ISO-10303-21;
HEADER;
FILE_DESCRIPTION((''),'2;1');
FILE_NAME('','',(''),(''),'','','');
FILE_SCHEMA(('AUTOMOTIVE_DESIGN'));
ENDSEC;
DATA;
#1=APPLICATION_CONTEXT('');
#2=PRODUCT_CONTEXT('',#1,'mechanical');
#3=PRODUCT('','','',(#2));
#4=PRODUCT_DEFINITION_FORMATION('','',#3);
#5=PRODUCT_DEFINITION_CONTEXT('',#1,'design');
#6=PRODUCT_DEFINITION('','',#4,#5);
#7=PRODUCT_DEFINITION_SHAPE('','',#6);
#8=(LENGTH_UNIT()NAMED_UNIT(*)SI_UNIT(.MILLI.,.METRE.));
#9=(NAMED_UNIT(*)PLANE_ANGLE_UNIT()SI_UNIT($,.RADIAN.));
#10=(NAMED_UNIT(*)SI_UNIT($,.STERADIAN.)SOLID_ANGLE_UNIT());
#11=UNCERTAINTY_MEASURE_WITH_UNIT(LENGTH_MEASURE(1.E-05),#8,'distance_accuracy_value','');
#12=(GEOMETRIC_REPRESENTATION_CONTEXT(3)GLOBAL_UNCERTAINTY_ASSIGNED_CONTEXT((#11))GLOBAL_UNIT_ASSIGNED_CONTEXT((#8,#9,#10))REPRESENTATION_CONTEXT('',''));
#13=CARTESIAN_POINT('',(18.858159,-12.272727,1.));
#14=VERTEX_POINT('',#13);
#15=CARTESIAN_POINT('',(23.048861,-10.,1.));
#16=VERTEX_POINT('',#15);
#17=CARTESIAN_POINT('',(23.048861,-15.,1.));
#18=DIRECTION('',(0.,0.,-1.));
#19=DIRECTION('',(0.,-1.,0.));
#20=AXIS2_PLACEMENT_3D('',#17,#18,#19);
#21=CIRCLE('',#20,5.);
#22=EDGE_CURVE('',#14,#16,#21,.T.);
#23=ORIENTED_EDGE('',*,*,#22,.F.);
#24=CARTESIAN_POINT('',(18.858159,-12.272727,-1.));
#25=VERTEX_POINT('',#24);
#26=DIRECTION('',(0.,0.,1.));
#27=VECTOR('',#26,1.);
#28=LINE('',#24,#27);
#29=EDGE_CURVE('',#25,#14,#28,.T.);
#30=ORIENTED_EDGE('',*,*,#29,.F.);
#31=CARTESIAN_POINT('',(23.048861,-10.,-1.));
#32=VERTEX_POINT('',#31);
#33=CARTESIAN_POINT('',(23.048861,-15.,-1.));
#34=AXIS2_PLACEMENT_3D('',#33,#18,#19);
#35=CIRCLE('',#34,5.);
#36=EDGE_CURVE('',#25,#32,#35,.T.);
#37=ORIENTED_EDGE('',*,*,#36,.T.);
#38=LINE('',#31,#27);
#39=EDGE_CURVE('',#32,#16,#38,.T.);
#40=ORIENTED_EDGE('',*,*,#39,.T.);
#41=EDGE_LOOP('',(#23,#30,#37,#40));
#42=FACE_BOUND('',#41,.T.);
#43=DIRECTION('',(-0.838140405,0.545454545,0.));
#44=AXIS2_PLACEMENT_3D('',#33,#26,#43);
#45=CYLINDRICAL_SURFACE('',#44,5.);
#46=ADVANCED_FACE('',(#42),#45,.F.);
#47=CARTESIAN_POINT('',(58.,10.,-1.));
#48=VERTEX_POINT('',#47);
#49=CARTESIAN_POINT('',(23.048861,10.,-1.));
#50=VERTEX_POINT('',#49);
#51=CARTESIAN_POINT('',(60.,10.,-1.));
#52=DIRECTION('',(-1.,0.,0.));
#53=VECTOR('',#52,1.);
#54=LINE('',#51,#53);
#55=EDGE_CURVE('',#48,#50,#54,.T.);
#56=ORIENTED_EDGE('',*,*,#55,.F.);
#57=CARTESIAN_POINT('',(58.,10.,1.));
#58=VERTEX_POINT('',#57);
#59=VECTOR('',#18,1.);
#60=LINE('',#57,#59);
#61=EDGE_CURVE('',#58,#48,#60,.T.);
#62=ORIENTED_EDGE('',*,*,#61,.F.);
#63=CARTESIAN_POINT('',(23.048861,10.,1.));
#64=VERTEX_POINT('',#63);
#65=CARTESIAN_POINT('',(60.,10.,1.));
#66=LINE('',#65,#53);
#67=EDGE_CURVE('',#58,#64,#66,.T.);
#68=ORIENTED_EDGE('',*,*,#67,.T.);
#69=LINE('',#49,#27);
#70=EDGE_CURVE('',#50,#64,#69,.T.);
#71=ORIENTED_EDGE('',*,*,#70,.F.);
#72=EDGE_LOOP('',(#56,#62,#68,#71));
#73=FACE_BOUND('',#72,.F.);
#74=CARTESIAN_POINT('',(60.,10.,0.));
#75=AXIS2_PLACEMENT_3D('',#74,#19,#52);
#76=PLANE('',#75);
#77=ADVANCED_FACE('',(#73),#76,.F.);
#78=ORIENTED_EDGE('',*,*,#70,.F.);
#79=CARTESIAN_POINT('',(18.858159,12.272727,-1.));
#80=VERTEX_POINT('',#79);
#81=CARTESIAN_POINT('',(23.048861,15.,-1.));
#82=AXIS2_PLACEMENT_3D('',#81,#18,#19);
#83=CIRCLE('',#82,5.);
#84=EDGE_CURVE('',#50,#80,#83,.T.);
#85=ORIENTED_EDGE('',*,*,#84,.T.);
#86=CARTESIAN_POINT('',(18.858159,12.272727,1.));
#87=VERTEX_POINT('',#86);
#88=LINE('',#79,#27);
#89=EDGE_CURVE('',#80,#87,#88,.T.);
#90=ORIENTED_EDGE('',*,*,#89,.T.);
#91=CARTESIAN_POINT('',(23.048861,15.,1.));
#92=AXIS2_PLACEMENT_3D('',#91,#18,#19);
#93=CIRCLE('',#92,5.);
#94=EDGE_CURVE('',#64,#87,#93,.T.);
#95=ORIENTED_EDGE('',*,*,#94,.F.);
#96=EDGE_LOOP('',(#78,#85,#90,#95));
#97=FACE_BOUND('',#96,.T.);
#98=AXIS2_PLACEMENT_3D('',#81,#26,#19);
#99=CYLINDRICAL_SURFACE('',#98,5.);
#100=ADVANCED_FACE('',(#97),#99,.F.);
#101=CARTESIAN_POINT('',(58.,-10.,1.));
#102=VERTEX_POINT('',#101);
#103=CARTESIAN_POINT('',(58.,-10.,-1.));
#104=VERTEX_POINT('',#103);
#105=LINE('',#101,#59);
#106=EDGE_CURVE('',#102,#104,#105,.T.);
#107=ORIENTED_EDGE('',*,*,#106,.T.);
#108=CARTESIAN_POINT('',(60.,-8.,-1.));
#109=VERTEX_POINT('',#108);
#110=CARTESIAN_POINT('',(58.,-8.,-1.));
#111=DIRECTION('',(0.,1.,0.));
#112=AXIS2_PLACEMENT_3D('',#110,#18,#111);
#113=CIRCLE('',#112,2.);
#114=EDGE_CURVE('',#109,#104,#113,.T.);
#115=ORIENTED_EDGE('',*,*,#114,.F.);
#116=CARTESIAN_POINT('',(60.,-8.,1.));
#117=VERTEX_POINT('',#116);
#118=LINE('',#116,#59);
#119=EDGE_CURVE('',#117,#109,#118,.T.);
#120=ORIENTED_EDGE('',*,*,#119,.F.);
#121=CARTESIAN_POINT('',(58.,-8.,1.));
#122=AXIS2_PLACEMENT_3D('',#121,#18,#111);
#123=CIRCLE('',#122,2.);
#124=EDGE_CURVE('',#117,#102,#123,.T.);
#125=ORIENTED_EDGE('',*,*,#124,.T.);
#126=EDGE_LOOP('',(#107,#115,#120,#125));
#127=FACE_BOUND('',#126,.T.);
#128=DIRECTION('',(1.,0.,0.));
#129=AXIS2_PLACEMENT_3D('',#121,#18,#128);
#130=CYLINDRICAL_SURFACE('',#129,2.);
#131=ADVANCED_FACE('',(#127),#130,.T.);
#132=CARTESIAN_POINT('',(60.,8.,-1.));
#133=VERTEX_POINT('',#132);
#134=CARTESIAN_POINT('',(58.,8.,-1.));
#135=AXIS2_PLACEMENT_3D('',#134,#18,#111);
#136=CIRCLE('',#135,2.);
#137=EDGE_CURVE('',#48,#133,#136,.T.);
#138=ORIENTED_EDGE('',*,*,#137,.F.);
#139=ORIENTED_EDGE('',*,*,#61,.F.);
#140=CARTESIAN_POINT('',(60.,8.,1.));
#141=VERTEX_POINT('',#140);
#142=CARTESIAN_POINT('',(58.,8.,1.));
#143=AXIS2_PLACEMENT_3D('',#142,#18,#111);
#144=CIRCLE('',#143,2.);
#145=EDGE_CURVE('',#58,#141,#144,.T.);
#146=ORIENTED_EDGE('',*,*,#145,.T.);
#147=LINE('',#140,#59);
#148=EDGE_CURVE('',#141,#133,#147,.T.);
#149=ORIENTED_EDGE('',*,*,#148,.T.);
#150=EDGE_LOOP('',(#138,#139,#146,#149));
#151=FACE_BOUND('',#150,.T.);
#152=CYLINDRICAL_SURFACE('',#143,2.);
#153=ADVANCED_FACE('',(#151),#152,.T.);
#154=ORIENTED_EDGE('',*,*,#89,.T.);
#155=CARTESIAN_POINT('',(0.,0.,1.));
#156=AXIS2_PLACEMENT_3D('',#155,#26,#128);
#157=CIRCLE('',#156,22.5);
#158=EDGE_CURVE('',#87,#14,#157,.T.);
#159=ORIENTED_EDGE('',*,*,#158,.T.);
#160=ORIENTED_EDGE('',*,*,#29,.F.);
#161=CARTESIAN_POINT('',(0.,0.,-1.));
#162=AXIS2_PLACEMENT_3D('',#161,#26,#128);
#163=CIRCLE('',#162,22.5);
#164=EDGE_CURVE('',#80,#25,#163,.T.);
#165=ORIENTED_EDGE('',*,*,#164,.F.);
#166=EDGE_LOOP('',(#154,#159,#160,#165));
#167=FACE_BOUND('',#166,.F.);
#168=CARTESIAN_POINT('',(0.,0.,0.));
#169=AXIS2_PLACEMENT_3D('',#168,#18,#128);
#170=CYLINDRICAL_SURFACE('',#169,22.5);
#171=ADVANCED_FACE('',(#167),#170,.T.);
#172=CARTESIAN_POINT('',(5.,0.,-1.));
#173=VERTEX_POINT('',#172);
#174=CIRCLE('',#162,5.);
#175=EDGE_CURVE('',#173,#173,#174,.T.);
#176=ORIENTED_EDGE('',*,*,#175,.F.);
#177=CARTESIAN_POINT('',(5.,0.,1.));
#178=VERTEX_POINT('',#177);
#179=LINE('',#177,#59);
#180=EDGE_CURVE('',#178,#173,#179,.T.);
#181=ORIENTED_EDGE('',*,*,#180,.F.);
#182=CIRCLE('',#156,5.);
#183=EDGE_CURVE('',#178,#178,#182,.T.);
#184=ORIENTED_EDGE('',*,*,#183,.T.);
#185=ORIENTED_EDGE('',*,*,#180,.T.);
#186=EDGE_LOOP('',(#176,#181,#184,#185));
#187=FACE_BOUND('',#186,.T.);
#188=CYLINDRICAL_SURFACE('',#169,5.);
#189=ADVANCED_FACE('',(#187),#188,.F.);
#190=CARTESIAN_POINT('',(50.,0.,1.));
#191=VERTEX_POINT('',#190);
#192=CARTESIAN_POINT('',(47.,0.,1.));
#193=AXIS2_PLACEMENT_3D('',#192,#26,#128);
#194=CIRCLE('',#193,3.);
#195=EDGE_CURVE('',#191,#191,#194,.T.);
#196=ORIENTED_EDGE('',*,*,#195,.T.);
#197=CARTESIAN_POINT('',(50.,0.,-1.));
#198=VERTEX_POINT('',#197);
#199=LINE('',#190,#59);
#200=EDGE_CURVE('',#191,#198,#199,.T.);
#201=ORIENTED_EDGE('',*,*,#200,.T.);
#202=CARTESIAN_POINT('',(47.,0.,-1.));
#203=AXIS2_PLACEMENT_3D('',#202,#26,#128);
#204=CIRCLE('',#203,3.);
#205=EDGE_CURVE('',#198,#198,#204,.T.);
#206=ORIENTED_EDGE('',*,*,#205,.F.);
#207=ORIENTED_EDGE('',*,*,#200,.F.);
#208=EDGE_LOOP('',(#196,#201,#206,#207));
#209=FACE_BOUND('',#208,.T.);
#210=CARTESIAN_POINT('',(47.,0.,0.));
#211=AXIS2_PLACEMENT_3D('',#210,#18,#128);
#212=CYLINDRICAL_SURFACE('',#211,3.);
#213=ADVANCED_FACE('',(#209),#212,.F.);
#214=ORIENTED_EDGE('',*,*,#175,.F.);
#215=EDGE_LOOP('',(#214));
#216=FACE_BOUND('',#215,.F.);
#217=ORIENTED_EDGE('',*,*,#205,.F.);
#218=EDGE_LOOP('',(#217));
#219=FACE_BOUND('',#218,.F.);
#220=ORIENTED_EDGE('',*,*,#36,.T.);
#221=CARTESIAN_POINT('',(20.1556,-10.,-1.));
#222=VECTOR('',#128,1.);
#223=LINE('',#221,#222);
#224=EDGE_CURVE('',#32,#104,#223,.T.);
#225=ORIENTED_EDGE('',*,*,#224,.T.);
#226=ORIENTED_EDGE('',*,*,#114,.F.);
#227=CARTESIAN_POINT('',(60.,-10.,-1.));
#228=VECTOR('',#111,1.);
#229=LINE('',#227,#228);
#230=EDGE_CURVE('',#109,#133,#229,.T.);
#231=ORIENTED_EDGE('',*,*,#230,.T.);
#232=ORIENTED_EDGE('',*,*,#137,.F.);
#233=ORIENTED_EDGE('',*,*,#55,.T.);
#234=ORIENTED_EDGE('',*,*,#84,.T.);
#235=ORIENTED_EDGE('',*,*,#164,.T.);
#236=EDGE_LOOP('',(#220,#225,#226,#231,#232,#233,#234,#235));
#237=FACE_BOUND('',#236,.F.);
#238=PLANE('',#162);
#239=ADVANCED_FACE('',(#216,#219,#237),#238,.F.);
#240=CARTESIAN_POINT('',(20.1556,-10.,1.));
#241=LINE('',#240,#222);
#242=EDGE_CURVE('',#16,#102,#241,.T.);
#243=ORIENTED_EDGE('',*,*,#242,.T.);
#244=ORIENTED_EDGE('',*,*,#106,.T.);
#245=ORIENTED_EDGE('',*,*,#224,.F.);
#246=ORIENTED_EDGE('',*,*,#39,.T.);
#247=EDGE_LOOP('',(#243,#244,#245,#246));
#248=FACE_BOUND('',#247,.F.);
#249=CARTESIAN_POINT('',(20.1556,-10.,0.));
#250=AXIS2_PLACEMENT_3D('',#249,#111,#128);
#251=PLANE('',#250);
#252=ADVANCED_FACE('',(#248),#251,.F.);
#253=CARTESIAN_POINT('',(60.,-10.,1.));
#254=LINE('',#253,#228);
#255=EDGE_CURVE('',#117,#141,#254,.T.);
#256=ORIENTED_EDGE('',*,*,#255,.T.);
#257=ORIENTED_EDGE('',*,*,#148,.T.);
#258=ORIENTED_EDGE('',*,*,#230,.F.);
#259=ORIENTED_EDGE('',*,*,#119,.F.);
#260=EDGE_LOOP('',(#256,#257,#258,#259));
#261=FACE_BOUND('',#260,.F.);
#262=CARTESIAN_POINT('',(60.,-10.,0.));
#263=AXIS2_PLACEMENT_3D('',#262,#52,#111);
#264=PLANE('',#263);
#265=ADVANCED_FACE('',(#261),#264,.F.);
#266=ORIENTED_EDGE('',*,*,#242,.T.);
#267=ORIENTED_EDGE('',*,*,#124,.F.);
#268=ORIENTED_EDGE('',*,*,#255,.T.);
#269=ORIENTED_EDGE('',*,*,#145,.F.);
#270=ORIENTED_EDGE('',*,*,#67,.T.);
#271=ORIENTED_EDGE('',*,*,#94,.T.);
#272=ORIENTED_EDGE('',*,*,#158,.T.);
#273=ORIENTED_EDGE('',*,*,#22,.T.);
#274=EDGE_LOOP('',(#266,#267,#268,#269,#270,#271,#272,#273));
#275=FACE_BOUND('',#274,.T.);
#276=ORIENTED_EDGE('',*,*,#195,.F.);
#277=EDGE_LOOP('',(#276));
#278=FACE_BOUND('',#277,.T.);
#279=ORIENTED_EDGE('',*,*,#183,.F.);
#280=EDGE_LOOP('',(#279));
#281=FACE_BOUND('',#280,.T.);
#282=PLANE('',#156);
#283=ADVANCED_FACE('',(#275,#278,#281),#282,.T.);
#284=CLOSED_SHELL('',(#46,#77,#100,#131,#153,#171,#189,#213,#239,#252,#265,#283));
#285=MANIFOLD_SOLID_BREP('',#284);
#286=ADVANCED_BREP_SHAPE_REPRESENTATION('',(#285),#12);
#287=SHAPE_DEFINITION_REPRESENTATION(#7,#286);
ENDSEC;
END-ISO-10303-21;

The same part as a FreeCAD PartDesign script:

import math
import FreeCAD as App
import Part
import Sketcher
Q = App.Units.Quantity


def edges_at(feature, points):
    """Names of the edges that pass closest to the given points."""
    edges = feature.Shape.Edges
    near = lambda p: min(range(len(edges)), key=lambda i: edges[i].distToShape(Part.Vertex(*p))[0])
    return sorted({f"Edge{near(p) + 1}" for p in points})

doc = App.newDocument("Part")
body = doc.addObject("PartDesign::Body", "Body")

sketch1 = body.newObject("Sketcher::SketchObject", "Sketch")
sketch1.AttachmentSupport = (doc.getObject("XY_Plane"), [""])
sketch1.MapMode = "FlatFace"
sketch1.addGeometry([
    Part.LineSegment(App.Vector(60, 10, 0), App.Vector(20.2, 10, 0)),
    Part.ArcOfCircle(Part.Circle(App.Vector(0, 0, 0), App.Vector(0, 0, 1), 22.5), math.radians(26), math.radians(334)),
    Part.LineSegment(App.Vector(20.2, -10, 0), App.Vector(60, -10, 0)),
    Part.LineSegment(App.Vector(60, -10, 0), App.Vector(60, 10, 0)),
    Part.Circle(App.Vector(47, 0, 0), App.Vector(0, 0, 1), 3),
    Part.Circle(App.Vector(0, 0, 0), App.Vector(0, 0, 1), 5),
], False)
sketch1.addConstraint([
    Sketcher.Constraint("Coincident", 0, 2, 1, 1),
    Sketcher.Constraint("Coincident", 1, 2, 2, 1),
    Sketcher.Constraint("Coincident", 2, 2, 3, 1),
    Sketcher.Constraint("Coincident", 3, 2, 0, 1),
    Sketcher.Constraint("Horizontal", 0),
    Sketcher.Constraint("Horizontal", 2),
    Sketcher.Constraint("Vertical", 3),
    Sketcher.Constraint("Coincident", 1, 3, -1, 1),
    Sketcher.Constraint("Coincident", 5, 3, -1, 1),
    Sketcher.Constraint("PointOnObject", 4, 3, -1),
    Sketcher.Constraint("Vertical", 0, 2, 1, 2),
    Sketcher.Constraint("Diameter", 4, Q("6 mm")),
    Sketcher.Constraint("Diameter", 5, Q("10 mm")),
    Sketcher.Constraint("Radius", 1, Q("22.5 mm")),
    Sketcher.Constraint("DistanceY", 3, 1, 3, 2, Q("20 mm")),
    Sketcher.Constraint("DistanceX", -1, 1, 2, 2, Q("60 mm")),
    Sketcher.Constraint("DistanceX", 4, 3, 2, 2, Q("13 mm")),
])
pad1 = body.newObject("PartDesign::Pad", "Pad")
pad1.Profile = sketch1
pad1.Length = 2
pad1.Midplane = True
doc.recompute()

fillet = body.newObject("PartDesign::Fillet", "Fillet")
fillet.Base = (pad1, edges_at(pad1, [(20.156, 10, 0), (20.156, -10, 0)]))
fillet.Radius = 5
doc.recompute()

fillet2 = body.newObject("PartDesign::Fillet", "Fillet001")
fillet2.Base = (fillet, edges_at(fillet, [(60, -10, 0), (60, 10, 0)]))
fillet2.Radius = 2

doc.recompute()
